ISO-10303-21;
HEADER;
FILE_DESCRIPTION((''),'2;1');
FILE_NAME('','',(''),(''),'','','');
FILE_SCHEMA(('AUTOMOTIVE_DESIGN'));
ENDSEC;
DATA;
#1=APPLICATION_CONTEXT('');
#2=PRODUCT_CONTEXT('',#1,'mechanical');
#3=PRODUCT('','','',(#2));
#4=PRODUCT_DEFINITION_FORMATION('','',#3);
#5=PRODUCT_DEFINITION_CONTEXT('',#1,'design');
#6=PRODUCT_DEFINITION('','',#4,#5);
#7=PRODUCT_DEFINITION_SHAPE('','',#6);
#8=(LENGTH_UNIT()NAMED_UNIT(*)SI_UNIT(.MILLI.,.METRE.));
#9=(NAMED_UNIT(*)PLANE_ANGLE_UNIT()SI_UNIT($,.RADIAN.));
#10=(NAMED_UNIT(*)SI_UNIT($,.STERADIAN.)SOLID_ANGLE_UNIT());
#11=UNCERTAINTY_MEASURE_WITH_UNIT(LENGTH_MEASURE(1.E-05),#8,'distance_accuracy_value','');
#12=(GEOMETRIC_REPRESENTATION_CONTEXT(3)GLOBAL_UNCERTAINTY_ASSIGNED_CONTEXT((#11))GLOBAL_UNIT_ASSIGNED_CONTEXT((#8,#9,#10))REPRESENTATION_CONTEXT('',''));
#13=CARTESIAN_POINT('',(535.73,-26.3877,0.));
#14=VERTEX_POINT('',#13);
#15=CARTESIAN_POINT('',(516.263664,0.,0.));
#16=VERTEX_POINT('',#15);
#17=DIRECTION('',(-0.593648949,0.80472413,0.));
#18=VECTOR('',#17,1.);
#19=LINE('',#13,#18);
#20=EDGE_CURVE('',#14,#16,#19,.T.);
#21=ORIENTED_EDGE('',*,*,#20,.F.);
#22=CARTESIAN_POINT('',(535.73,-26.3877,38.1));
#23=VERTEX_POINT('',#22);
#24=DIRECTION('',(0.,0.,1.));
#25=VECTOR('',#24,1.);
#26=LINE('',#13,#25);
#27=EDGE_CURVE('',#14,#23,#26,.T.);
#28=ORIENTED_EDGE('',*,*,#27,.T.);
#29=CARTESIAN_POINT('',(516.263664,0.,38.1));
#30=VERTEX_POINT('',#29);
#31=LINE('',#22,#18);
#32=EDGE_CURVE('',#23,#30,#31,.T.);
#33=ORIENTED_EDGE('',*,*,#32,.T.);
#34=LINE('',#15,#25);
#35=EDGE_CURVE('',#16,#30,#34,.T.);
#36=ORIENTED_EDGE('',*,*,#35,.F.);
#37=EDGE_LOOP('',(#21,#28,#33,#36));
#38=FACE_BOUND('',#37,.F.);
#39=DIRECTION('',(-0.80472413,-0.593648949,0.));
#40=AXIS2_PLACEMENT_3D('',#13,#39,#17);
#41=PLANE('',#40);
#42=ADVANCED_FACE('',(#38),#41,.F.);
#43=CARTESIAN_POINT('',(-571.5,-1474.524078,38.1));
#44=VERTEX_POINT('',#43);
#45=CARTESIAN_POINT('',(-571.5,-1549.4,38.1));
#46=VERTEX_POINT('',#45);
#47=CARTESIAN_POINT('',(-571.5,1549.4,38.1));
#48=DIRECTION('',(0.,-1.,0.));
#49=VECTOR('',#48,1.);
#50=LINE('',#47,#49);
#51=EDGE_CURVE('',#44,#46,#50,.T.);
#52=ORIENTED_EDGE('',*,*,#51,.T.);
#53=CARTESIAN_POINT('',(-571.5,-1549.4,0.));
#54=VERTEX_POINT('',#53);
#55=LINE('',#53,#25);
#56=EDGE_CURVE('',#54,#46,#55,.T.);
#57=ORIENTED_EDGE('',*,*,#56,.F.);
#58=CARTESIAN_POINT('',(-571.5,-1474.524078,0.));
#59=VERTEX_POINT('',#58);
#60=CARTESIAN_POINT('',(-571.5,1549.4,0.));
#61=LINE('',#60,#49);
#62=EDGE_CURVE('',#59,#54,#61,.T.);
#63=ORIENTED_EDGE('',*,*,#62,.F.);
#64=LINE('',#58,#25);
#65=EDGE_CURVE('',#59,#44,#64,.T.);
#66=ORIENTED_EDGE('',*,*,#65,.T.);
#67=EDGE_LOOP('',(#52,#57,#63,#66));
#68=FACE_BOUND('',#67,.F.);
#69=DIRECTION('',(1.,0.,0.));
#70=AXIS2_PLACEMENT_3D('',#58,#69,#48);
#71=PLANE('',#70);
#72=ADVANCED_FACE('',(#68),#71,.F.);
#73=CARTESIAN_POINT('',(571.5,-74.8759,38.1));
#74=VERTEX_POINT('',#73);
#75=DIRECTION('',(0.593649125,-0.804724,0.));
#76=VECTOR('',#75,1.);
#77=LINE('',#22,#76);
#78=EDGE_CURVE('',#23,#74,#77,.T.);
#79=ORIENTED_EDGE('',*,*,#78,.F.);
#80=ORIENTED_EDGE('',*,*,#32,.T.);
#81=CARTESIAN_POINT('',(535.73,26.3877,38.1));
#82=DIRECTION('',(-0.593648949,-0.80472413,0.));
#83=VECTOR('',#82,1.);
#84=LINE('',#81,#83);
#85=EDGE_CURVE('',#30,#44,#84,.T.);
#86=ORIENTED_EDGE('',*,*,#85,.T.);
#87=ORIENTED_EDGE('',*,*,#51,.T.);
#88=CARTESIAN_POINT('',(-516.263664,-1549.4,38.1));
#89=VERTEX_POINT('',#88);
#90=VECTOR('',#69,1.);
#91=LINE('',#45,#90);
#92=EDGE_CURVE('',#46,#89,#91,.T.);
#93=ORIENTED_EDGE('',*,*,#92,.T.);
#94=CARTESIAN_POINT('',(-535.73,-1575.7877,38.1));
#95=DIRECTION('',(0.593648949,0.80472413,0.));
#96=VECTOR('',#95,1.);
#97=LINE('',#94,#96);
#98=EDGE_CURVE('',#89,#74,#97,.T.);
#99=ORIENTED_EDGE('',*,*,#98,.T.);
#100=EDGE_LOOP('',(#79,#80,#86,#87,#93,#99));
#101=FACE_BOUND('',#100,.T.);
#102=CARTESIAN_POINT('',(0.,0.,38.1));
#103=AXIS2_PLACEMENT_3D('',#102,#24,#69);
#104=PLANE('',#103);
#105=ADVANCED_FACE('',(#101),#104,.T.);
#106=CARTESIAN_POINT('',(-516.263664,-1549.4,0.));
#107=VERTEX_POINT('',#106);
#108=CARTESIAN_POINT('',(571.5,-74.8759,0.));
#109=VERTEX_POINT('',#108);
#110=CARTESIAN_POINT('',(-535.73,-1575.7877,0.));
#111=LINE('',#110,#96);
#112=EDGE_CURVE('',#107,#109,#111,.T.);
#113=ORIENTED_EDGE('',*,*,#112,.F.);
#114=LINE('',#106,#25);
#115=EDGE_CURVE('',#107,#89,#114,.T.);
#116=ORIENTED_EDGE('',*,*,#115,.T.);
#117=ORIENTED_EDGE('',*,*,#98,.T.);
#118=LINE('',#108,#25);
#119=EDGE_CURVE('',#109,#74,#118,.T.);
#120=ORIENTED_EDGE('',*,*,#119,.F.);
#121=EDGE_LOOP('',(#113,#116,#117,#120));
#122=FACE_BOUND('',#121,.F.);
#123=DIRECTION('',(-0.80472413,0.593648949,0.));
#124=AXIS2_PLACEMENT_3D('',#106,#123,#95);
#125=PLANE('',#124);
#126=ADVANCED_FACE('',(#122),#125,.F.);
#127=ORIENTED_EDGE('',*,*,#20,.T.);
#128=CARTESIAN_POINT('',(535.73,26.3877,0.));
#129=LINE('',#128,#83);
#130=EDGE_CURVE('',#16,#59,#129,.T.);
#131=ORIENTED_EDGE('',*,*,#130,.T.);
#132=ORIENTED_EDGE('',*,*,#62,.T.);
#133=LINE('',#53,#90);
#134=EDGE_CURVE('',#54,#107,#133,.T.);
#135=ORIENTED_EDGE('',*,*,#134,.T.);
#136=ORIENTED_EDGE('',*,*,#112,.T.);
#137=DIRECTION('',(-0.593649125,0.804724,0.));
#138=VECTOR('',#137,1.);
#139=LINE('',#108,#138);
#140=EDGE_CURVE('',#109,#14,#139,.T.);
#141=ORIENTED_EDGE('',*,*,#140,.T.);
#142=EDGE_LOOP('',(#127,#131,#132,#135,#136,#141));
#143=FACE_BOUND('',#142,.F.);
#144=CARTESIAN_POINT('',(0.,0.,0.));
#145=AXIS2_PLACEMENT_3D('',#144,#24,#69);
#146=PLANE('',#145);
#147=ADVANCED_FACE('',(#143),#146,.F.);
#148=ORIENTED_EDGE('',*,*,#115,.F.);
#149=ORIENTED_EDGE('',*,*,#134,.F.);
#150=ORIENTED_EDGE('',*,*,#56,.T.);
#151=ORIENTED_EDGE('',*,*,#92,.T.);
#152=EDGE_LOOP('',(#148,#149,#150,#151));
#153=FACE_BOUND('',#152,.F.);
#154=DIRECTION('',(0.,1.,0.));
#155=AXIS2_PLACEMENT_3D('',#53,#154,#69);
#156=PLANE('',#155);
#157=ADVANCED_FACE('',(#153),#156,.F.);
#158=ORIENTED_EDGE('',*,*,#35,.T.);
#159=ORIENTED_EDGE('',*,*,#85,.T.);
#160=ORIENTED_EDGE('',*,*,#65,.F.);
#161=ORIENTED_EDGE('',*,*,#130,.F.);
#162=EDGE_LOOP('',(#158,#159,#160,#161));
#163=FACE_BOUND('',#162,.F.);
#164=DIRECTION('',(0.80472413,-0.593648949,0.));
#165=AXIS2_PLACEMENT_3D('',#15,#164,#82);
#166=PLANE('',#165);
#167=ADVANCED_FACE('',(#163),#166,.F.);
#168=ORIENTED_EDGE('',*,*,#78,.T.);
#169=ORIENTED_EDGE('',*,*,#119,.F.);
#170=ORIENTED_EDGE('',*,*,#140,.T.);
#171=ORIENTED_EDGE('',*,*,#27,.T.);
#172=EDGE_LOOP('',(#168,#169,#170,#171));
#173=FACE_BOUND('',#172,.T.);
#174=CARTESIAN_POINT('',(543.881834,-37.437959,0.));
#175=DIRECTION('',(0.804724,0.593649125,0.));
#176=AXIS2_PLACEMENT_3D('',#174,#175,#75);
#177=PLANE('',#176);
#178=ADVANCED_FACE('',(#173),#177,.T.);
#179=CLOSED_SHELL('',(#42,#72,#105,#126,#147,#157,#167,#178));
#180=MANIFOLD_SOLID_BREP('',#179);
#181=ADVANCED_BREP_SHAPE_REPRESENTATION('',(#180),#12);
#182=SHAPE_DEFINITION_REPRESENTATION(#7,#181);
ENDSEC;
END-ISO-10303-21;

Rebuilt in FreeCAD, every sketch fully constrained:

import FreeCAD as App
import Part
import Sketcher
from FreeCAD import Vector
Q = App.Units.Quantity


def add_polygon(sketch, points):
    """Adds a closed chain of lines whose ends are joined by coincident constraints."""
    first, n = sketch.GeometryCount, len(points)
    for a, b in zip(points, points[1:] + points[:1]):
        sketch.addGeometry(Part.LineSegment(App.Vector(*a, 0), App.Vector(*b, 0)), False)
    for i in range(n):
        sketch.addConstraint(Sketcher.Constraint("Coincident", first + i, 2, first + (i + 1) % n, 1))

doc = App.newDocument("Part")
body = doc.addObject("PartDesign::Body", "Body")

# Sketch on XY plane
sketch1 = doc.addObject("Sketcher::SketchObject", "Sketch")
body.addObject(sketch1)
sketch1.AttachmentSupport = (doc.XY_Plane, [""])
sketch1.MapMode = "FlatFace"
add_polygon(sketch1, [(572, -75), (536, -26), (516, 0), (-572, -1475), (-572, -1549), (-516, -1549)])  # lines 0-5
sketch1.addConstraint(Sketcher.Constraint("Vertical", 3))
sketch1.addConstraint(Sketcher.Constraint("Horizontal", 4))
sketch1.addConstraint(Sketcher.Constraint("PointOnObject", 1, 2, -1))
sketch1.addConstraint(Sketcher.Constraint("Parallel", 0, 1))
sketch1.addConstraint(Sketcher.Constraint("Parallel", 2, 5))
sketch1.addConstraint(Sketcher.Constraint("Equal", 2, 5))
sketch1.addConstraint(Sketcher.Constraint("DistanceX", 2, 2, 5, 2, Q("45 in")))
sketch1.addConstraint(Sketcher.Constraint("DistanceY", 3, 2, -1, 1, Q("61 in")))
sketch1.addConstraint(Sketcher.Constraint("DistanceX", 2, 2, -1, 1, Q("22.5 in")))
sketch1.addConstraint(Sketcher.Constraint("DistanceX", 4, 1, 4, 2, Q("55.2363 mm")))
sketch1.addConstraint(Sketcher.Constraint("DistanceY", 3, 2, 3, 1, Q("74.876 mm")))
sketch1.addConstraint(Sketcher.Constraint("DistanceX", 1, 2, 0, 2, Q("0.7664 in")))
pad1 = doc.addObject("PartDesign::Pad", "Pad")
body.addObject(pad1)
pad1.Profile = sketch1
pad1.Length = Q("1.5 in")

doc.recompute()
